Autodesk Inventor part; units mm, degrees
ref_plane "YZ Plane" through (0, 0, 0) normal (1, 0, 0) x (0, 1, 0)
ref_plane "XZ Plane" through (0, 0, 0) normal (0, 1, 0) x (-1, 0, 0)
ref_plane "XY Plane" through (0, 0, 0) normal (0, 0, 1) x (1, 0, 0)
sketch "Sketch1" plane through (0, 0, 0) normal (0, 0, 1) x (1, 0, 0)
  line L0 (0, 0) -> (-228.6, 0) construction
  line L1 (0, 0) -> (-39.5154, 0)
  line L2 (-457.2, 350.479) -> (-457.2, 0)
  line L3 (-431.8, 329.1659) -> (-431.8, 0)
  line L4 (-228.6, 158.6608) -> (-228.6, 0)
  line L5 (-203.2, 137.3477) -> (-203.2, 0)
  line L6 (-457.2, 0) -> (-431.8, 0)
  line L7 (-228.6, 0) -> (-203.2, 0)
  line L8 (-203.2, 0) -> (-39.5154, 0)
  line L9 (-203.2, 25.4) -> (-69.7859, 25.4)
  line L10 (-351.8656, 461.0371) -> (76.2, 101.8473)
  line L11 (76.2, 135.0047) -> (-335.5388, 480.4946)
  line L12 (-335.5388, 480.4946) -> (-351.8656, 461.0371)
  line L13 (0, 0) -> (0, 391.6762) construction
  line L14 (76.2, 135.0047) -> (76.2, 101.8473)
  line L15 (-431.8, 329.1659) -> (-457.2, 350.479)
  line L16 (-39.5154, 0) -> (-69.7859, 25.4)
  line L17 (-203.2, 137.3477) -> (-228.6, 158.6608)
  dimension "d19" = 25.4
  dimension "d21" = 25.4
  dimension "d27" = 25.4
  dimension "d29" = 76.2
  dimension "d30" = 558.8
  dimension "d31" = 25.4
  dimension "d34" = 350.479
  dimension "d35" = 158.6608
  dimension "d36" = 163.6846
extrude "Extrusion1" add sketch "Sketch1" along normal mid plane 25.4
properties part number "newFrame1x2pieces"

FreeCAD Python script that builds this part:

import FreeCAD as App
import Part
import Sketcher
from FreeCAD import Vector
Q = App.Units.Quantity


def add_polygon(sketch, points):
    """Adds a closed chain of lines whose ends are joined by coincident constraints."""
    first, n = sketch.GeometryCount, len(points)
    for a, b in zip(points, points[1:] + points[:1]):
        sketch.addGeometry(Part.LineSegment(App.Vector(*a, 0), App.Vector(*b, 0)), False)
    for i in range(n):
        sketch.addConstraint(Sketcher.Constraint("Coincident", first + i, 2, first + (i + 1) % n, 1))

doc = App.newDocument("Part")
body = doc.addObject("PartDesign::Body", "Body")
body.AllowCompound = True

sketch1 = doc.addObject("Sketcher::SketchObject", "Sketch")
body.addObject(sketch1)
sketch1.AttachmentSupport = (doc.XY_Plane, [""])
sketch1.MapMode = "FlatFace"
add_polygon(sketch1, [(-431.8, 329.1659), (-457.2, 350.479), (-457.2, 0), (-431.8, 0)])
add_polygon(sketch1, [(-203.2, 137.3477), (-228.6, 158.6608), (-228.6, 0), (-39.5154, 0), (-69.7859, 25.4), (-203.2, 25.4)])
add_polygon(sketch1, [(-335.5388, 480.4946), (-351.8656, 461.0371), (76.2, 101.8473), (76.2, 135.0047)])
sketch1.addConstraint([
    Sketcher.Constraint("Vertical", 1),
    Sketcher.Constraint("Horizontal", 2),
    Sketcher.Constraint("Vertical", 3),
    Sketcher.Constraint("Vertical", 5),
    Sketcher.Constraint("Horizontal", 6),
    Sketcher.Constraint("Horizontal", 8),
    Sketcher.Constraint("Vertical", 9),
    Sketcher.Constraint("Vertical", 12),
    Sketcher.Constraint("PointOnObject", 1, 2, -1),
    Sketcher.Constraint("PointOnObject", 5, 2, -1),
    Sketcher.Constraint("Parallel", 0, 4),
    Sketcher.Constraint("Parallel", 4, 7),
    Sketcher.Constraint("Perpendicular", 7, 10),
    Sketcher.Constraint("Perpendicular", 10, 11),
    Sketcher.Constraint("Parallel", 11, 13),
    Sketcher.Constraint("Equal", 0, 4),
    Sketcher.Constraint("DistanceX", 2, 1, 2, 2, Q("1 in")),
    Sketcher.Constraint("Distance", 10, Q("1 in")),
    Sketcher.Constraint("Distance", 11, Q("22 in")),
    Sketcher.Constraint("DistanceY", -1, 1, 7, 2, Q("1 in")),
    Sketcher.Constraint("DistanceX", -1, 1, 11, 2, Q("3 in")),
    Sketcher.Constraint("DistanceY", 5, 2, 5, 1, Q("6.2465 in")),
    Sketcher.Constraint("DistanceX", 0, 2, -1, 1, Q("18 in")),
    Sketcher.Constraint("DistanceX", 4, 2, -1, 1, Q("9 in")),
    Sketcher.Constraint("Angle", 0, Q("140 deg")),
    Sketcher.Constraint("DistanceY", 1, 2, 1, 1, Q("350.479 mm")),
    Sketcher.Constraint("DistanceX", 8, 2, 6, 2, Q("163.6846 mm")),
    Sketcher.Constraint("DistanceY", -1, 1, 13, 2, Q("18.9171 in")),
])
pad1 = doc.addObject("PartDesign::Pad", "Pad")
body.addObject(pad1)
pad1.Profile = sketch1
pad1.Length = Q("1 in")
pad1.Midplane = True

doc.recompute()
